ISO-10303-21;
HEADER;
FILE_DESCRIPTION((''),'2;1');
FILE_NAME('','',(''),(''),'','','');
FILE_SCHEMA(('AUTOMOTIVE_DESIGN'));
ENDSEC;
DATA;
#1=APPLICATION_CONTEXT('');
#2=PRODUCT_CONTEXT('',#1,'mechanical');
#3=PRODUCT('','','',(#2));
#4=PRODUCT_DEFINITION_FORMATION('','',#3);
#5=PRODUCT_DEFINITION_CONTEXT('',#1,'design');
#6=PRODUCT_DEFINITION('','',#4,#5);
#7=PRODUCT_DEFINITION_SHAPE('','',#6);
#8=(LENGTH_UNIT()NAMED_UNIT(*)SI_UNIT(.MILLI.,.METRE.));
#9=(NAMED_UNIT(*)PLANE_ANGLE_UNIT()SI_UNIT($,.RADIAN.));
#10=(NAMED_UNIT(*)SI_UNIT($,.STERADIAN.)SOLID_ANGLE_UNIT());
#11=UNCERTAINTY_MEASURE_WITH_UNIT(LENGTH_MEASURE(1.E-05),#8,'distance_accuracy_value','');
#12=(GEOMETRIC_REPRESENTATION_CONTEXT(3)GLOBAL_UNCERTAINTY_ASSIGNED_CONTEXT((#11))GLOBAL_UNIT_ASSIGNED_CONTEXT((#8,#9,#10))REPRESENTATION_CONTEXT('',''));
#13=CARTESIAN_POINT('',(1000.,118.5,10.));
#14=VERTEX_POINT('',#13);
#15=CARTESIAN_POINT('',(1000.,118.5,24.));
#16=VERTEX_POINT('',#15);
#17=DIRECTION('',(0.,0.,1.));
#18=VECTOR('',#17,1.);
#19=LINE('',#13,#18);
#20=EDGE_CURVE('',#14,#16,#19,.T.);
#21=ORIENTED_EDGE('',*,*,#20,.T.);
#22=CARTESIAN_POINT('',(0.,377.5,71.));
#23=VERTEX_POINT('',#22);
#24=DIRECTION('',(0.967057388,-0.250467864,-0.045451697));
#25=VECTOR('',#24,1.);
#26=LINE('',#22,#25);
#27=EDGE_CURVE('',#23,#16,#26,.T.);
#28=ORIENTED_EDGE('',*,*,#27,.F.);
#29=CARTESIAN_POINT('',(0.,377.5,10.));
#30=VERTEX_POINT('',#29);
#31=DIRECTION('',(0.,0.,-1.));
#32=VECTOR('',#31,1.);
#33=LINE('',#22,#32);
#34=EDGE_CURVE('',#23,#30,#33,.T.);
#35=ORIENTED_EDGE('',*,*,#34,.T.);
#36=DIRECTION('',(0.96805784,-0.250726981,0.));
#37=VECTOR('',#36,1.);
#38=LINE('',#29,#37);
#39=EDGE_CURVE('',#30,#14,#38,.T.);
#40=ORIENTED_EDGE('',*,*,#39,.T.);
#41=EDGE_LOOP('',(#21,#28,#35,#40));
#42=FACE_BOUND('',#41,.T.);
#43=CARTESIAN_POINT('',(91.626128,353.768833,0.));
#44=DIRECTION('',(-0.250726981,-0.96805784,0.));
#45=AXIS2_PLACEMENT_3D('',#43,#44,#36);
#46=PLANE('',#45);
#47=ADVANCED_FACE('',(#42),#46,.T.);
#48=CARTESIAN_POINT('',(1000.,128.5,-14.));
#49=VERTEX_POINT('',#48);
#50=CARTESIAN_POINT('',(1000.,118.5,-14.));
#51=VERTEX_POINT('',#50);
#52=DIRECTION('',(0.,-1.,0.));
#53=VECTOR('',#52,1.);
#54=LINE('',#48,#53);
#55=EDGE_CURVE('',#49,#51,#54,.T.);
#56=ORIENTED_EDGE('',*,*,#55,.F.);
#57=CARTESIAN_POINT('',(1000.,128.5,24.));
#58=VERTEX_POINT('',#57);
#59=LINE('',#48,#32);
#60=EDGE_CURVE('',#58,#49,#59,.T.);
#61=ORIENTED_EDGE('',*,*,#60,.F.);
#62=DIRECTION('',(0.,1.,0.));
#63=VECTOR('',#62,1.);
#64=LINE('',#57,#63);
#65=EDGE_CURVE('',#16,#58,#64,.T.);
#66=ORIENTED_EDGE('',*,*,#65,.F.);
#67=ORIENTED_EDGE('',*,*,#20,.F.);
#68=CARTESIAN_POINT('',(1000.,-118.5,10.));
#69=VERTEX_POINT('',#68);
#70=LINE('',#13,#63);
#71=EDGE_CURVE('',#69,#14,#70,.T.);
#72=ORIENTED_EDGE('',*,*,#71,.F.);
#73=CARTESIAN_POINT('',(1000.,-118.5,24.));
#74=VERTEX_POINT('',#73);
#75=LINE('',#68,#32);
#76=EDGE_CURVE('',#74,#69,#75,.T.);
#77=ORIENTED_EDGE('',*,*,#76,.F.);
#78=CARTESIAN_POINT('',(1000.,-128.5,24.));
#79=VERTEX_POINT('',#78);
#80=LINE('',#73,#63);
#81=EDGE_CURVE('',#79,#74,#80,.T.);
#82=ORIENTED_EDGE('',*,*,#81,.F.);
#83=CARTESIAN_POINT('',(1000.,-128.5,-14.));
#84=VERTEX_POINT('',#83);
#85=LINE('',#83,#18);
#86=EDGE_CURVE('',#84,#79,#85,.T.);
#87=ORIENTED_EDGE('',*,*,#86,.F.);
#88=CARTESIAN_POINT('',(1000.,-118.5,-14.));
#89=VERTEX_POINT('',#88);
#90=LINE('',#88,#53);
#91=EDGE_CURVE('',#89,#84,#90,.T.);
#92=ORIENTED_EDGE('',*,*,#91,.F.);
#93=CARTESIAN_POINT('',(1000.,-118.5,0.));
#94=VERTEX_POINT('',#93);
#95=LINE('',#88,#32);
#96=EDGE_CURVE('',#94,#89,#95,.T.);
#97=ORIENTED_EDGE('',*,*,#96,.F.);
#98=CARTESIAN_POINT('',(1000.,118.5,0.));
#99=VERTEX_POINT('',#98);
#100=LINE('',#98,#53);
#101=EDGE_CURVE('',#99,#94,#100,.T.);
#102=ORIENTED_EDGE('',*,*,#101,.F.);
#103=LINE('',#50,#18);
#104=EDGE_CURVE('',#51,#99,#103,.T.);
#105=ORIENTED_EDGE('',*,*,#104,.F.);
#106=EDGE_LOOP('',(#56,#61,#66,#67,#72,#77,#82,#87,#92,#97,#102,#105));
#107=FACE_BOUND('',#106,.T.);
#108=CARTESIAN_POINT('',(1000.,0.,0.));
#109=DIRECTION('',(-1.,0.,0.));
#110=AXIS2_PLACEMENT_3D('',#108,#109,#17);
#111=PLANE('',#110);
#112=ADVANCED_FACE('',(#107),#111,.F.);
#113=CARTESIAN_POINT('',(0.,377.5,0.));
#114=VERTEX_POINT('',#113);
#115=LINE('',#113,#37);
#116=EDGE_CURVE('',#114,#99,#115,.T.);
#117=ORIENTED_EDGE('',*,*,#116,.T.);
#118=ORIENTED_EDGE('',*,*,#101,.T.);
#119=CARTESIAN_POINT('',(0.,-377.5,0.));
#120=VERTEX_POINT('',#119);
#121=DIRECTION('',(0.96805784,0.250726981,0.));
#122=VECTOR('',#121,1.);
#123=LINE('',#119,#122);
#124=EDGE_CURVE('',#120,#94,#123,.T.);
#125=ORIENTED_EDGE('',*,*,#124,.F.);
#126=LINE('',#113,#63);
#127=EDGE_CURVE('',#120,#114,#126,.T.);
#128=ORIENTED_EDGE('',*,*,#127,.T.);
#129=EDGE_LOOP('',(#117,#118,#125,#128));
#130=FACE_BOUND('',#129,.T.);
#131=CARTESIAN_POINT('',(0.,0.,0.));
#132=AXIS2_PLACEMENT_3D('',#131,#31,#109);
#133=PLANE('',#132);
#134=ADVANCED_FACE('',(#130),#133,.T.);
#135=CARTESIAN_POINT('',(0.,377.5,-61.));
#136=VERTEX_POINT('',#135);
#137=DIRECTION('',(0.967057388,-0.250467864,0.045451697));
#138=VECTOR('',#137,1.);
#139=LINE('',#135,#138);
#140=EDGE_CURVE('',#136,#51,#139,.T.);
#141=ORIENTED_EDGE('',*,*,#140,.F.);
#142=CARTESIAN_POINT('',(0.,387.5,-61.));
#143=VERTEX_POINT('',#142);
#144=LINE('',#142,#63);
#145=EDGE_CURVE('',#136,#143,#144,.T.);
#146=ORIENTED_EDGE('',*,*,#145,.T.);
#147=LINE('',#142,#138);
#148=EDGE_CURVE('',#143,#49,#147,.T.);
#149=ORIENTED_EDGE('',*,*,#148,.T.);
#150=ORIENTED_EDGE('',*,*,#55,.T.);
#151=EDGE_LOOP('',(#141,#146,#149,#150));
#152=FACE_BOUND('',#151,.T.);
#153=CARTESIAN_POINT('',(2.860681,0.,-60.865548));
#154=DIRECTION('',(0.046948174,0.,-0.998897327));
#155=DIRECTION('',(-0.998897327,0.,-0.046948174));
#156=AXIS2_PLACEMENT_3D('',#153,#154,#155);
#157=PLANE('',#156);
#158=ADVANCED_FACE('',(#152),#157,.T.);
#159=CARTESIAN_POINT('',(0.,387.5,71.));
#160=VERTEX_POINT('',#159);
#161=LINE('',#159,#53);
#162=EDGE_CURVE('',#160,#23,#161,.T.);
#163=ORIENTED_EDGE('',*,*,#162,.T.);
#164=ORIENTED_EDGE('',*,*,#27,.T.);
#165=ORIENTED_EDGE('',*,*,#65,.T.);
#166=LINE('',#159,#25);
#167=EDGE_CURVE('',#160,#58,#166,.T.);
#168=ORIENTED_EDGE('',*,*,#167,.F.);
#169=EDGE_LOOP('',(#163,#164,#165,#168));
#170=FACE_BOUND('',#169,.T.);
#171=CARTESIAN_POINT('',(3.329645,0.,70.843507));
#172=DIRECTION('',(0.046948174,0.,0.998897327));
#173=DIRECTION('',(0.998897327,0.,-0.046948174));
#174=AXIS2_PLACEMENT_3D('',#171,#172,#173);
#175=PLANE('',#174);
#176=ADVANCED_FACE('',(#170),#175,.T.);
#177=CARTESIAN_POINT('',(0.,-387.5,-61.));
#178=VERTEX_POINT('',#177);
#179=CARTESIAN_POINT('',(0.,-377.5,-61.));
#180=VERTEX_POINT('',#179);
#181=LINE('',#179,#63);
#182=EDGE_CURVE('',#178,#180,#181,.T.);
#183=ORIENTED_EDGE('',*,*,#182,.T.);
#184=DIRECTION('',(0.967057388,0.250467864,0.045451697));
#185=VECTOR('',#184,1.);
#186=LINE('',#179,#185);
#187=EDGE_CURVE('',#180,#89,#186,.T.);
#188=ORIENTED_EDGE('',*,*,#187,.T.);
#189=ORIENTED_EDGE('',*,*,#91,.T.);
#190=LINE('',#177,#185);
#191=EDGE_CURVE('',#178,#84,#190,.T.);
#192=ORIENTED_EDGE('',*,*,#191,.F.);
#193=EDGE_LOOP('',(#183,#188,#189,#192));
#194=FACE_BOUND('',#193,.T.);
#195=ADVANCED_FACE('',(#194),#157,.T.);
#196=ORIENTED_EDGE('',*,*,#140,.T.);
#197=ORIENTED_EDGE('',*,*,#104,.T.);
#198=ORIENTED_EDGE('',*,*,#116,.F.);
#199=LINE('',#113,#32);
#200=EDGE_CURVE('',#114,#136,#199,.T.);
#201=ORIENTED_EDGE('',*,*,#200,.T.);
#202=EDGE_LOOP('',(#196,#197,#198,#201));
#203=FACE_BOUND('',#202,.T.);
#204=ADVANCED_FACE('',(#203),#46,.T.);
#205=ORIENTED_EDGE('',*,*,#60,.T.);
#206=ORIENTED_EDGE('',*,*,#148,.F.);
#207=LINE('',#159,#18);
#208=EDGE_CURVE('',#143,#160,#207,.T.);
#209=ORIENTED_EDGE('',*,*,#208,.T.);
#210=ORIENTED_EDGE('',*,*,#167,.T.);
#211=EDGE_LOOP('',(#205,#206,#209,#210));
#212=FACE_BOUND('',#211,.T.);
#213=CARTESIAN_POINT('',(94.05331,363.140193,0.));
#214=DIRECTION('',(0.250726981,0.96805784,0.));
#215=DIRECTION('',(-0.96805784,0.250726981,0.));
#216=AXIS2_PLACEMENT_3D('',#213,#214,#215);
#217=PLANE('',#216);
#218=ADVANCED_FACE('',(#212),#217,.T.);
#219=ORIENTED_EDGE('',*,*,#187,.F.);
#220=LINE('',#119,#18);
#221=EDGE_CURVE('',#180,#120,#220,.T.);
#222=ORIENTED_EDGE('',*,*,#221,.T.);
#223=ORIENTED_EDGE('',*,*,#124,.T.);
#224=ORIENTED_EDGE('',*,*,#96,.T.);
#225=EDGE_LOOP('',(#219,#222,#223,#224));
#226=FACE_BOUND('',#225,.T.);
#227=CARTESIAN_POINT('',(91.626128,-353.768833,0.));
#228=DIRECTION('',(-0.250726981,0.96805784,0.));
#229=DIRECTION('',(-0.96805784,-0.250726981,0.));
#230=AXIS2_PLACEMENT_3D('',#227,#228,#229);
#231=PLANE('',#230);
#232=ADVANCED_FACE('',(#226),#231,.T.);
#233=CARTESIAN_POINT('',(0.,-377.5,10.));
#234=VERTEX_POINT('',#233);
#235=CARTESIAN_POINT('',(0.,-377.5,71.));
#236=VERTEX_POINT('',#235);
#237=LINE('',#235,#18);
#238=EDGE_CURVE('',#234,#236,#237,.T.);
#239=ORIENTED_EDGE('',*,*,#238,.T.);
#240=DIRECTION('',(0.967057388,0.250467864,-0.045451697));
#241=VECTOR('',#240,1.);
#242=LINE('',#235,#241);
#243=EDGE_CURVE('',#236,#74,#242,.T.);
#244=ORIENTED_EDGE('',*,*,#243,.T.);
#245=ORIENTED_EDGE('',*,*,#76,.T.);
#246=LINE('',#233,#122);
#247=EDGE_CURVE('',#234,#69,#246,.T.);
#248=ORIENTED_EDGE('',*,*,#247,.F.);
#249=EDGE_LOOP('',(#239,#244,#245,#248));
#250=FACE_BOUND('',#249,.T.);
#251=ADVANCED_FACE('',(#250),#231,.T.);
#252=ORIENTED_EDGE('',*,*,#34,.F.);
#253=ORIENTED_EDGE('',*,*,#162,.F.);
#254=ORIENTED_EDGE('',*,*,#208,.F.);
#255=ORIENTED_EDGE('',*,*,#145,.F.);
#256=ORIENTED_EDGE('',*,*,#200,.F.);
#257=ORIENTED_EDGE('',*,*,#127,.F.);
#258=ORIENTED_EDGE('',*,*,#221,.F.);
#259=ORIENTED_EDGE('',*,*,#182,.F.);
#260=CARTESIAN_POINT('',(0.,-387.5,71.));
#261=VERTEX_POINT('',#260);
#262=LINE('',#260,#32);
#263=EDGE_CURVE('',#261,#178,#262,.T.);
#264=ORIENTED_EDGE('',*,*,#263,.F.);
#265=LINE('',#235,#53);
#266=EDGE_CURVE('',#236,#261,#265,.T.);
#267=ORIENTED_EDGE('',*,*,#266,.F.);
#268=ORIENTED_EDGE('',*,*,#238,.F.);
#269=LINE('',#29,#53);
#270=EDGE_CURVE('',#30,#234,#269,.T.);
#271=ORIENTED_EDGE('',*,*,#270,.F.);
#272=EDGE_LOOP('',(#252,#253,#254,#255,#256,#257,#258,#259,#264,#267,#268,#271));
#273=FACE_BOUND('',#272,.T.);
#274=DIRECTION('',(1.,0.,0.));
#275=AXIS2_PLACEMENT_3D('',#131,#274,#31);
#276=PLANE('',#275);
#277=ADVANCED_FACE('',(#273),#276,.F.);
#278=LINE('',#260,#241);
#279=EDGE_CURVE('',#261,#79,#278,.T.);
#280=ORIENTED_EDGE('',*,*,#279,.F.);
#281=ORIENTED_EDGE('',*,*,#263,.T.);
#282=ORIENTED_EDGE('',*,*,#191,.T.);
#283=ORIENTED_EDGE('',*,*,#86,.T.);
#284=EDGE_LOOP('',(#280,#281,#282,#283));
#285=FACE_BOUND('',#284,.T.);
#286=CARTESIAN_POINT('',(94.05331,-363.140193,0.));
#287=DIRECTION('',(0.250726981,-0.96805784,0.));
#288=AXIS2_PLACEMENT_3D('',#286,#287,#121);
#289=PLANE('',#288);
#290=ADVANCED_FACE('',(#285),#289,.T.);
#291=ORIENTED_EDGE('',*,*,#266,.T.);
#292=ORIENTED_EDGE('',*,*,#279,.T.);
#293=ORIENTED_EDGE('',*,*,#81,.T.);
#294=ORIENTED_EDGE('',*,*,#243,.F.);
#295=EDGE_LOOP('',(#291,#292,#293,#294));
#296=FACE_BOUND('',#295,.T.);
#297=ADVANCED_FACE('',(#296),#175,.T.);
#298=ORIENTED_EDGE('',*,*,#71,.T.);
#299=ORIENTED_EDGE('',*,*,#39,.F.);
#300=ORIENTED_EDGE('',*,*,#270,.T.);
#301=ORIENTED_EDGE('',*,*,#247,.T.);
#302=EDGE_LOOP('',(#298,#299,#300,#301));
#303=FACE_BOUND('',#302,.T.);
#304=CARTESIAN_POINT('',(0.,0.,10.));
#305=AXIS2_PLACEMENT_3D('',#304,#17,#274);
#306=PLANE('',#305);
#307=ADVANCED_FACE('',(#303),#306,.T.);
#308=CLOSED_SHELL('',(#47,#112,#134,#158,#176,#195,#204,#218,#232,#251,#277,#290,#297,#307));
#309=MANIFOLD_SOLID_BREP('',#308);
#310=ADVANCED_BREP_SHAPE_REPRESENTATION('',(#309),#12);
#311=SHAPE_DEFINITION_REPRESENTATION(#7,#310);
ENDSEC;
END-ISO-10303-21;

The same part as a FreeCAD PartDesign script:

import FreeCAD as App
import Part
import Sketcher

V = App.Vector
Q = App.Units.Quantity


def add_polygon(sketch, points):
    """Adds a closed chain of lines whose ends are joined by coincident constraints."""
    first, n = sketch.GeometryCount, len(points)
    for a, b in zip(points, points[1:] + points[:1]):
        sketch.addGeometry(Part.LineSegment(App.Vector(*a, 0), App.Vector(*b, 0)), False)
    for i in range(n):
        sketch.addConstraint(Sketcher.Constraint("Coincident", first + i, 2, first + (i + 1) % n, 1))

doc = App.newDocument("Part")
body = doc.addObject("PartDesign::Body", "Body")

# Sketch on YZ plane
sketch1 = body.newObject("Sketcher::SketchObject", "Sketch")
sketch1.AttachmentSupport = (doc.getObject("YZ_Plane"), [""])
sketch1.MapMode = "FlatFace"
add_polygon(sketch1, [(388, -61), (388, 71), (378, 71), (378, 10), (-378, 10), (-378, 71), (-388, 71), (-388, -61), (-378, -61), (-378, 0), (378, 0), (378, -61)])  # lines 0-11
sketch1.addConstraint([
    Sketcher.Constraint("Vertical", 0),
    Sketcher.Constraint("Horizontal", 1),
    Sketcher.Constraint("Vertical", 2),
    Sketcher.Constraint("Horizontal", 3),
    Sketcher.Constraint("Vertical", 4),
    Sketcher.Constraint("Horizontal", 5),
    Sketcher.Constraint("Vertical", 6),
    Sketcher.Constraint("Horizontal", 7),
    Sketcher.Constraint("Vertical", 8),
    Sketcher.Constraint("Horizontal", 9),
    Sketcher.Constraint("Vertical", 10),
    Sketcher.Constraint("Horizontal", 11),
    Sketcher.Constraint("Symmetric", 8, 2, 9, 2, -1, 1),
    Sketcher.Constraint("Symmetric", 1, 2, 4, 2, -2),
    Sketcher.Constraint("Symmetric", 6, 2, 11, 2, -2),
    Sketcher.Constraint("Vertical", 4, 2, 7, 2),
    Sketcher.Constraint("Equal", 4, 8),
    Sketcher.Constraint("DistanceX", 1, 2, 1, 1, Q("10 mm")),
    Sketcher.Constraint("DistanceX", 3, 2, 3, 1, Q("755 mm")),
    Sketcher.Constraint("DistanceY", 0, 1, 0, 2, Q("132 mm")),
    Sketcher.Constraint("DistanceY", 2, 2, 2, 1, Q("61 mm")),
])

# Sketch on YZ plane
sketch2 = body.newObject("Sketcher::SketchObject", "Sketch001")
sketch2.AttachmentSupport = (doc.getObject("YZ_Plane"), [""])
sketch2.MapMode = "FlatFace"
sketch2.AttachmentOffset = App.Placement(V(0, 0, 1000), App.Rotation())
add_polygon(sketch2, [(128, 24), (128, -14), (118, -14), (118, 0), (-118, 0), (-118, -14), (-128, -14), (-128, 24), (-118, 24), (-118, 10), (118, 10), (118, 24)])  # lines 0-11
sketch2.addConstraint([
    Sketcher.Constraint("Vertical", 0),
    Sketcher.Constraint("Horizontal", 1),
    Sketcher.Constraint("Vertical", 2),
    Sketcher.Constraint("Horizontal", 3),
    Sketcher.Constraint("Vertical", 4),
    Sketcher.Constraint("Horizontal", 5),
    Sketcher.Constraint("Vertical", 6),
    Sketcher.Constraint("Horizontal", 7),
    Sketcher.Constraint("Vertical", 8),
    Sketcher.Constraint("Horizontal", 9),
    Sketcher.Constraint("Vertical", 10),
    Sketcher.Constraint("Horizontal", 11),
    Sketcher.Constraint("Symmetric", 2, 2, 3, 2, -1, 1),
    Sketcher.Constraint("Symmetric", 0, 2, 5, 2, -2),
    Sketcher.Constraint("Symmetric", 7, 2, 10, 2, -2),
    Sketcher.Constraint("Vertical", 4, 2, 7, 2),
    Sketcher.Constraint("Equal", 4, 8),
    Sketcher.Constraint("DistanceX", 1, 2, 1, 1, Q("10 mm")),
    Sketcher.Constraint("DistanceX", 3, 2, 3, 1, Q("237 mm")),
    Sketcher.Constraint("DistanceY", 0, 2, 0, 1, Q("38 mm")),
    Sketcher.Constraint("DistanceY", 2, 1, 2, 2, Q("14 mm")),
])

additiveloft = body.newObject("PartDesign::AdditiveLoft", "AdditiveLoft")
additiveloft.Profile = sketch1
additiveloft.Sections = [sketch2]

doc.recompute()
